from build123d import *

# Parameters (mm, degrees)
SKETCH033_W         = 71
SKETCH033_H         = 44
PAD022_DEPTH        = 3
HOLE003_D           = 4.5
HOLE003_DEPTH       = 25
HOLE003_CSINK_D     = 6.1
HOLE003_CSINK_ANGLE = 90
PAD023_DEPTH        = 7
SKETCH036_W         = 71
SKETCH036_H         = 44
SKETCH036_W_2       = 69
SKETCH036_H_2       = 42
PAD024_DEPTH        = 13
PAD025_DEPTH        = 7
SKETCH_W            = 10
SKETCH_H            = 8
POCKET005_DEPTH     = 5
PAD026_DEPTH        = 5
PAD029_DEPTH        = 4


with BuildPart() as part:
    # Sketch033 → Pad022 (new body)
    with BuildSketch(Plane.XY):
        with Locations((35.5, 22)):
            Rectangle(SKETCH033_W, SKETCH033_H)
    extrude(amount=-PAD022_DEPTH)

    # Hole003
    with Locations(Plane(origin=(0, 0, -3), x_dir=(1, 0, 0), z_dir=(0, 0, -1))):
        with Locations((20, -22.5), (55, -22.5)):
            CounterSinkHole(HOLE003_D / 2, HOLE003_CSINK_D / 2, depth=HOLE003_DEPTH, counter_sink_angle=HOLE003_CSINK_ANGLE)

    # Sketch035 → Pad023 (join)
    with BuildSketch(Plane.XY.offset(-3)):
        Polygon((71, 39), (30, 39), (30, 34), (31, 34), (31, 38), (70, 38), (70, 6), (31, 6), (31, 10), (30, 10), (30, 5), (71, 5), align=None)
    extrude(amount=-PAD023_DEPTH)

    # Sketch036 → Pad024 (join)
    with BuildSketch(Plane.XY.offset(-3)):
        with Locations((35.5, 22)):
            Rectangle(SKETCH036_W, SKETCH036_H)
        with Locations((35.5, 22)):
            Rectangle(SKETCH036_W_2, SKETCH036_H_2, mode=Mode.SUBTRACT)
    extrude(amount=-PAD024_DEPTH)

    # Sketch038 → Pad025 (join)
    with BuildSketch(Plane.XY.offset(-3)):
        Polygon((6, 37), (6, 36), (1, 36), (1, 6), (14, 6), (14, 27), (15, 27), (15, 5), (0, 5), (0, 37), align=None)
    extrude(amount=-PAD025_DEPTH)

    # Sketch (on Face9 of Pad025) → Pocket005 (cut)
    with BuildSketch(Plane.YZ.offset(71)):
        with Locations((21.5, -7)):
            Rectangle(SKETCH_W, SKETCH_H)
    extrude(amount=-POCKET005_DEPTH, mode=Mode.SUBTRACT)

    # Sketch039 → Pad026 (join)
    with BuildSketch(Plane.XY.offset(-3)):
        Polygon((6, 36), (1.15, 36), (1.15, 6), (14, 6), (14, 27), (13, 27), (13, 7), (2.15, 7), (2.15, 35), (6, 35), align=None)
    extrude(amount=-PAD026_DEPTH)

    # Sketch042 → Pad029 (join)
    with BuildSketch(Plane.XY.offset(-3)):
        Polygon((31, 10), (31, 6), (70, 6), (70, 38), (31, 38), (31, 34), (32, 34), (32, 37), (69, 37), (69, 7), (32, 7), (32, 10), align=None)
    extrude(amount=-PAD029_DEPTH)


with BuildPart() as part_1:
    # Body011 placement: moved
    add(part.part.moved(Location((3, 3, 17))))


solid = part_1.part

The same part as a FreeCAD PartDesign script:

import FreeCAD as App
import Part
import Sketcher
from FreeCAD import Vector
Q = App.Units.Quantity


def add_polygon(sketch, points):
    """Adds a closed chain of lines whose ends are joined by coincident constraints."""
    first, n = sketch.GeometryCount, len(points)
    for a, b in zip(points, points[1:] + points[:1]):
        sketch.addGeometry(Part.LineSegment(App.Vector(*a, 0), App.Vector(*b, 0)), False)
    for i in range(n):
        sketch.addConstraint(Sketcher.Constraint("Coincident", first + i, 2, first + (i + 1) % n, 1))

doc = App.newDocument("Part")
params = doc.addObject("Spreadsheet::Sheet", "Params")
for row, (alias, value) in enumerate([
    ("sketch1_width", "71 mm"),
    ("sketch1_height", "44 mm"),
    ("pad1_length", "3 mm"),
    ("sketch2_diameter", "4.5 mm"),
    ("hole_diameter", "4.5 mm"),
    ("hole_depth", "25 mm"),
    ("hole_csink_diameter", "6.1 mm"),
    ("sketch3_width", "41 mm"),
    ("sketch3_width2", "1 mm"),
    ("sketch3_width3", "39 mm"),
    ("sketch3_height", "5 mm"),
    ("sketch3_height2", "4 mm"),
    ("pad2_length", "7 mm"),
    ("sketch4_width", "71 mm"),
    ("sketch4_width2", "69 mm"),
    ("sketch4_height", "44 mm"),
    ("sketch4_height2", "42 mm"),
    ("pad3_length", "13 mm"),
    ("sketch5_width", "6 mm"),
    ("sketch5_width2", "15 mm"),
    ("sketch5_width3", "1 mm"),
    ("sketch5_width4", "13 mm"),
    ("sketch5_height", "32 mm"),
    ("pad4_length", "7 mm"),
    ("sketch6_width", "10 mm"),
    ("sketch6_height", "8 mm"),
    ("pocket1_length", "5 mm"),
    ("sketch7_width", "1 mm"),
    ("sketch7_height", "30 mm"),
    ("sketch7_height2", "21 mm"),
    ("sketch7_height3", "20 mm"),
    ("sketch7_width2", "4.85 mm"),
    ("pad5_length", "5 mm"),
    ("sketch8_width", "39 mm"),
    ("sketch8_width2", "1 mm"),
    ("sketch8_width3", "37 mm"),
    ("sketch8_height", "4 mm"),
    ("sketch8_height2", "32 mm"),
    ("pad6_length", "4 mm"),
], start=1):
    params.set(f"A{row}", alias)
    params.set(f"B{row}", "=" + value)
    params.setAlias(f"B{row}", alias)

body = doc.addObject("PartDesign::Body", "Body")

# Sketch on XY plane
sketch1 = doc.addObject("Sketcher::SketchObject", "Sketch")
body.addObject(sketch1)
sketch1.AttachmentSupport = (doc.XY_Plane, [""])
sketch1.MapMode = "FlatFace"
add_polygon(sketch1, [(0, 44), (0, 0), (71, 0), (71, 44)])  # lines 0-3
sketch1.addConstraint([
    Sketcher.Constraint("Vertical", 0),
    Sketcher.Constraint("Horizontal", 1),
    Sketcher.Constraint("Vertical", 2),
    Sketcher.Constraint("Horizontal", 3),
    Sketcher.Constraint("Coincident", 0, 2, -1, 1),
    Sketcher.Constraint("DistanceX", 1, 1, 1, 2, Q("71 mm")),
    Sketcher.Constraint("DistanceY", 0, 2, 0, 1, Q("44 mm")),
])
sketch1.setExpression("Constraints[9]", "Params.sketch1_width")
sketch1.setExpression("Constraints[10]", "Params.sketch1_height")
pad1 = doc.addObject("PartDesign::Pad", "Pad")
body.addObject(pad1)
pad1.Profile = sketch1
pad1.setExpression("Length", "Params.pad1_length")
pad1.Reversed = True

# Sketch on XY plane
sketch2 = doc.addObject("Sketcher::SketchObject", "Sketch001")
body.addObject(sketch2)
sketch2.AttachmentSupport = (doc.XY_Plane, [""])
sketch2.MapMode = "FlatFace"
sketch2.AttachmentOffset = App.Placement(Vector(0, 0, -3), App.Rotation())
sketch2.addGeometry([
    Part.Circle(Vector(20, 22.5, 0), Vector(0, 0, 1), 2.2),
    Part.Circle(Vector(55, 22.5, 0), Vector(0, 0, 1), 2.2),
], False)
sketch2.addConstraint([
    Sketcher.Constraint("Equal", 0, 1),
    Sketcher.Constraint("Horizontal", 0, 3, 1, 3),
    Sketcher.Constraint("Diameter", 0, Q("4.5 mm")),
    Sketcher.Constraint("DistanceX", -1, 1, 0, 3, Q("20 mm")),
    Sketcher.Constraint("DistanceX", -1, 1, 1, 3, Q("55 mm")),
    Sketcher.Constraint("DistanceY", -1, 1, 0, 3, Q("22.5 mm")),
])
sketch2.setExpression("Constraints[2]", "Params.sketch2_diameter")
doc.recompute()
hole = doc.addObject("PartDesign::Hole", "Hole")
body.addObject(hole)
hole.Profile = sketch2
hole.ThreadType = "None"
hole.setExpression("Diameter", "Params.hole_diameter")
hole.DepthType = "Dimension"
hole.setExpression("Depth", "Params.hole_depth")
hole.DrillPoint = "Flat"
hole.HoleCutType = "Countersink"
hole.setExpression("HoleCutDiameter", "Params.hole_csink_diameter")
hole.HoleCutCountersinkAngle = 90
hole.Reversed = True

# Sketch on XY plane
sketch3 = doc.addObject("Sketcher::SketchObject", "Sketch002")
body.addObject(sketch3)
sketch3.AttachmentSupport = (doc.XY_Plane, [""])
sketch3.MapMode = "FlatFace"
sketch3.AttachmentOffset = App.Placement(Vector(0, 0, -3), App.Rotation())
add_polygon(sketch3, [(71, 39), (30, 39), (30, 34), (31, 34), (31, 38), (70, 38), (70, 6), (31, 6), (31, 10), (30, 10), (30, 5), (71, 5)])  # lines 0-11
sketch3.addConstraint([
    Sketcher.Constraint("Horizontal", 0),
    Sketcher.Constraint("Vertical", 1),
    Sketcher.Constraint("Horizontal", 2),
    Sketcher.Constraint("Vertical", 3),
    Sketcher.Constraint("Horizontal", 4),
    Sketcher.Constraint("Vertical", 5),
    Sketcher.Constraint("Horizontal", 6),
    Sketcher.Constraint("Vertical", 7),
    Sketcher.Constraint("Horizontal", 8),
    Sketcher.Constraint("Vertical", 9),
    Sketcher.Constraint("Horizontal", 10),
    Sketcher.Constraint("Vertical", 11),
    Sketcher.Constraint("Vertical", 3, 2, 6, 2),
    Sketcher.Constraint("Vertical", 1, 2, 8, 2),
    Sketcher.Constraint("Equal", 3, 7),
    Sketcher.Constraint("Equal", 1, 9),
    Sketcher.Constraint("DistanceX", 0, 2, 0, 1, Q("41 mm")),
    Sketcher.Constraint("DistanceX", 2, 1, 2, 2, Q("1 mm")),
    Sketcher.Constraint("DistanceX", 4, 1, 4, 2, Q("39 mm")),
    Sketcher.Constraint("DistanceY", 1, 2, 1, 1, Q("5 mm")),
    Sketcher.Constraint("DistanceY", 3, 1, 3, 2, Q("4 mm")),
    Sketcher.Constraint("DistanceY", 5, 2, 5, 1, Q("32 mm")),
    Sketcher.Constraint("DistanceX", -1, 1, 0, 2, Q("30 mm")),
    Sketcher.Constraint("DistanceY", -1, 1, 0, 2, Q("39 mm")),
])
sketch3.setExpression("Constraints[28]", "Params.sketch3_width")
sketch3.setExpression("Constraints[29]", "Params.sketch3_width2")
sketch3.setExpression("Constraints[30]", "Params.sketch3_width3")
sketch3.setExpression("Constraints[31]", "Params.sketch3_height")
sketch3.setExpression("Constraints[32]", "Params.sketch3_height2")
pad2 = doc.addObject("PartDesign::Pad", "Pad001")
body.addObject(pad2)
pad2.Profile = sketch3
pad2.setExpression("Length", "Params.pad2_length")
pad2.Reversed = True

# Sketch on XY plane
sketch4 = doc.addObject("Sketcher::SketchObject", "Sketch003")
body.addObject(sketch4)
sketch4.AttachmentSupport = (doc.XY_Plane, [""])
sketch4.MapMode = "FlatFace"
sketch4.AttachmentOffset = App.Placement(Vector(0, 0, -3), App.Rotation())
add_polygon(sketch4, [(0, 44), (0, 0), (71, 0), (71, 44)])  # lines 0-3
add_polygon(sketch4, [(70, 1), (1, 1), (1, 43), (70, 43)])  # lines 4-7
sketch4.addConstraint([
    Sketcher.Constraint("Vertical", 0),
    Sketcher.Constraint("Horizontal", 1),
    Sketcher.Constraint("Vertical", 2),
    Sketcher.Constraint("Horizontal", 3),
    Sketcher.Constraint("Horizontal", 4),
    Sketcher.Constraint("Vertical", 5),
    Sketcher.Constraint("Horizontal", 6),
    Sketcher.Constraint("Vertical", 7),
    Sketcher.Constraint("Coincident", 0, 2, -1, 1),
    Sketcher.Constraint("DistanceX", 1, 1, 1, 2, Q("71 mm")),
    Sketcher.Constraint("DistanceX", 4, 2, 4, 1, Q("69 mm")),
    Sketcher.Constraint("DistanceY", 0, 2, 0, 1, Q("44 mm")),
    Sketcher.Constraint("DistanceY", 5, 1, 5, 2, Q("42 mm")),
    Sketcher.Constraint("DistanceX", -1, 1, 4, 2, Q("1 mm")),
    Sketcher.Constraint("DistanceY", -1, 1, 4, 2, Q("1 mm")),
])
sketch4.setExpression("Constraints[17]", "Params.sketch4_width")
sketch4.setExpression("Constraints[18]", "Params.sketch4_width2")
sketch4.setExpression("Constraints[19]", "Params.sketch4_height")
sketch4.setExpression("Constraints[20]", "Params.sketch4_height2")
pad3 = doc.addObject("PartDesign::Pad", "Pad002")
body.addObject(pad3)
pad3.Profile = sketch4
pad3.setExpression("Length", "Params.pad3_length")
pad3.Reversed = True

# Sketch on XY plane
sketch5 = doc.addObject("Sketcher::SketchObject", "Sketch004")
body.addObject(sketch5)
sketch5.AttachmentSupport = (doc.XY_Plane, [""])
sketch5.MapMode = "FlatFace"
sketch5.AttachmentOffset = App.Placement(Vector(0, 0, -3), App.Rotation())
add_polygon(sketch5, [(6, 36), (6, 37), (0, 37), (0, 5), (15, 5), (15, 27), (14, 27), (14, 6), (1, 6), (1, 36)])  # lines 0-9
sketch5.addConstraint([
    Sketcher.Constraint("Vertical", 0),
    Sketcher.Constraint("Horizontal", 1),
    Sketcher.Constraint("Vertical", 2),
    Sketcher.Constraint("Horizontal", 3),
    Sketcher.Constraint("Vertical", 4),
    Sketcher.Constraint("Horizontal", 5),
    Sketcher.Constraint("Vertical", 6),
    Sketcher.Constraint("Horizontal", 7),
    Sketcher.Constraint("Vertical", 8),
    Sketcher.Constraint("Horizontal", 9),
    Sketcher.Constraint("PointOnObject", 1, 2, -2),
    Sketcher.Constraint("Equal", 5, 0),
    Sketcher.Constraint("DistanceX", 1, 2, 1, 1, Q("6 mm")),
    Sketcher.Constraint("DistanceX", 3, 1, 3, 2, Q("15 mm")),
    Sketcher.Constraint("DistanceX", 5, 2, 5, 1, Q("1 mm")),
    Sketcher.Constraint("DistanceX", 7, 2, 7, 1, Q("13 mm")),
    Sketcher.Constraint("DistanceY", 2, 2, 2, 1, Q("32 mm")),
    Sketcher.Constraint("DistanceY", 4, 1, 4, 2, Q("22 mm")),
    Sketcher.Constraint("DistanceY", 6, 2, 6, 1, Q("21 mm")),
    Sketcher.Constraint("DistanceY", -1, 1, 0, 2, Q("37 mm")),
])
sketch5.setExpression("Constraints[22]", "Params.sketch5_width")
sketch5.setExpression("Constraints[23]", "Params.sketch5_width2")
sketch5.setExpression("Constraints[24]", "Params.sketch5_width3")
sketch5.setExpression("Constraints[25]", "Params.sketch5_width4")
sketch5.setExpression("Constraints[26]", "Params.sketch5_height")
pad4 = doc.addObject("PartDesign::Pad", "Pad003")
body.addObject(pad4)
pad4.Profile = sketch5
pad4.setExpression("Length", "Params.pad4_length")
pad4.Reversed = True

# Sketch on YZ plane
sketch6 = doc.addObject("Sketcher::SketchObject", "Sketch005")
body.addObject(sketch6)
sketch6.AttachmentSupport = (doc.YZ_Plane, [""])
sketch6.MapMode = "FlatFace"
sketch6.AttachmentOffset = App.Placement(Vector(0, 0, 71), App.Rotation())
add_polygon(sketch6, [(16, -3), (16, -11), (26, -11), (26, -3)])  # lines 0-3
sketch6.addConstraint([
    Sketcher.Constraint("Vertical", 0),
    Sketcher.Constraint("Horizontal", 1),
    Sketcher.Constraint("Vertical", 2),
    Sketcher.Constraint("Horizontal", 3),
    Sketcher.Constraint("DistanceX", 1, 1, 1, 2, Q("10 mm")),
    Sketcher.Constraint("DistanceY", 0, 2, 0, 1, Q("8 mm")),
    Sketcher.Constraint("DistanceY", 0, 2, -1, 1, Q("11 mm")),
    Sketcher.Constraint("DistanceX", -1, 1, 0, 2, Q("16.5 mm")),
])
sketch6.setExpression("Constraints[8]", "Params.sketch6_width")
sketch6.setExpression("Constraints[9]", "Params.sketch6_height")
pocket1 = doc.addObject("PartDesign::Pocket", "Pocket")
body.addObject(pocket1)
pocket1.Profile = sketch6
pocket1.setExpression("Length", "Params.pocket1_length")

# Sketch on XY plane
sketch7 = doc.addObject("Sketcher::SketchObject", "Sketch006")
body.addObject(sketch7)
sketch7.AttachmentSupport = (doc.XY_Plane, [""])
sketch7.MapMode = "FlatFace"
sketch7.AttachmentOffset = App.Placement(Vector(0, 0, -3), App.Rotation())
add_polygon(sketch7, [(6, 36), (1.1, 36), (1.1, 6), (14, 6), (14, 27), (13, 27), (13, 7), (2.1, 7), (2.1, 35), (6, 35)])  # lines 0-9
sketch7.addConstraint([
    Sketcher.Constraint("Horizontal", 0),
    Sketcher.Constraint("Vertical", 1),
    Sketcher.Constraint("Horizontal", 2),
    Sketcher.Constraint("Vertical", 3),
    Sketcher.Constraint("Horizontal", 4),
    Sketcher.Constraint("Vertical", 5),
    Sketcher.Constraint("Horizontal", 6),
    Sketcher.Constraint("Vertical", 7),
    Sketcher.Constraint("Horizontal", 8),
    Sketcher.Constraint("Vertical", 9),
    Sketcher.Constraint("Equal", 4, 9),
    Sketcher.Constraint("DistanceX", 4, 2, 4, 1, Q("1 mm")),
    Sketcher.Constraint("DistanceY", 1, 2, 1, 1, Q("30 mm")),
    Sketcher.Constraint("DistanceY", 3, 1, 3, 2, Q("21 mm")),
    Sketcher.Constraint("DistanceY", 5, 2, 5, 1, Q("20 mm")),
    Sketcher.Constraint("DistanceY", -1, 1, 0, 2, Q("36 mm")),
    Sketcher.Constraint("DistanceX", -1, 1, 2, 2, Q("14 mm")),
    Sketcher.Constraint("DistanceX", -1, 1, 8, 2, Q("6 mm")),
    Sketcher.Constraint("DistanceX", 1, 2, 6, 2, Q("1 mm")),
    Sketcher.Constraint("DistanceX", 0, 2, 0, 1, Q("4.85 mm")),
])
sketch7.setExpression("Constraints[21]", "Params.sketch7_width")
sketch7.setExpression("Constraints[22]", "Params.sketch7_height")
sketch7.setExpression("Constraints[23]", "Params.sketch7_height2")
sketch7.setExpression("Constraints[24]", "Params.sketch7_height3")
sketch7.setExpression("Constraints[29]", "Params.sketch7_width2")
pad5 = doc.addObject("PartDesign::Pad", "Pad004")
body.addObject(pad5)
pad5.Profile = sketch7
pad5.setExpression("Length", "Params.pad5_length")
pad5.Reversed = True

# Sketch on XY plane
sketch8 = doc.addObject("Sketcher::SketchObject", "Sketch007")
body.addObject(sketch8)
sketch8.AttachmentSupport = (doc.XY_Plane, [""])
sketch8.MapMode = "FlatFace"
sketch8.AttachmentOffset = App.Placement(Vector(0, 0, -3), App.Rotation())
add_polygon(sketch8, [(31, 10), (31, 6), (70, 6), (70, 38), (31, 38), (31, 34), (32, 34), (32, 37), (69, 37), (69, 7), (32, 7), (32, 10)])  # lines 0-11
sketch8.addConstraint([
    Sketcher.Constraint("Vertical", 0),
    Sketcher.Constraint("Horizontal", 1),
    Sketcher.Constraint("Vertical", 2),
    Sketcher.Constraint("Horizontal", 3),
    Sketcher.Constraint("Vertical", 4),
    Sketcher.Constraint("Horizontal", 5),
    Sketcher.Constraint("Vertical", 6),
    Sketcher.Constraint("Horizontal", 7),
    Sketcher.Constraint("Vertical", 8),
    Sketcher.Constraint("Horizontal", 9),
    Sketcher.Constraint("Vertical", 10),
    Sketcher.Constraint("Horizontal", 11),
    Sketcher.Constraint("Vertical", 0, 2, 3, 2),
    Sketcher.Constraint("Vertical", 6, 2, 9, 2),
    Sketcher.Constraint("Equal", 0, 4),
    Sketcher.Constraint("Equal", 6, 10),
    Sketcher.Constraint("DistanceX", 1, 1, 1, 2, Q("39 mm")),
    Sketcher.Constraint("DistanceX", 5, 1, 5, 2, Q("1 mm")),
    Sketcher.Constraint("DistanceX", 7, 1, 7, 2, Q("37 mm")),
    Sketcher.Constraint("DistanceY", 0, 2, 0, 1, Q("4 mm")),
    Sketcher.Constraint("DistanceY", 2, 1, 2, 2, Q("32 mm")),
    Sketcher.Constraint("DistanceY", 6, 1, 6, 2, Q("3 mm")),
    Sketcher.Constraint("DistanceX", -1, 1, 0, 2, Q("31 mm")),
    Sketcher.Constraint("DistanceY", -1, 1, 0, 2, Q("6 mm")),
])
sketch8.setExpression("Constraints[28]", "Params.sketch8_width")
sketch8.setExpression("Constraints[29]", "Params.sketch8_width2")
sketch8.setExpression("Constraints[30]", "Params.sketch8_width3")
sketch8.setExpression("Constraints[31]", "Params.sketch8_height")
sketch8.setExpression("Constraints[32]", "Params.sketch8_height2")
pad6 = doc.addObject("PartDesign::Pad", "Pad005")
body.addObject(pad6)
pad6.Profile = sketch8
pad6.setExpression("Length", "Params.pad6_length")
pad6.Reversed = True
body2 = doc.addObject("PartDesign::Body", "Body001")
doc.recompute()

body.Placement = App.Placement(Vector(3, 3, 17), App.Rotation(Vector(0, 0, 1), 0))
boolean = doc.addObject("PartDesign::Boolean", "Boolean")
body2.addObject(boolean)
boolean.Type = "Fuse"
boolean.addObjects([body])

doc.recompute()
